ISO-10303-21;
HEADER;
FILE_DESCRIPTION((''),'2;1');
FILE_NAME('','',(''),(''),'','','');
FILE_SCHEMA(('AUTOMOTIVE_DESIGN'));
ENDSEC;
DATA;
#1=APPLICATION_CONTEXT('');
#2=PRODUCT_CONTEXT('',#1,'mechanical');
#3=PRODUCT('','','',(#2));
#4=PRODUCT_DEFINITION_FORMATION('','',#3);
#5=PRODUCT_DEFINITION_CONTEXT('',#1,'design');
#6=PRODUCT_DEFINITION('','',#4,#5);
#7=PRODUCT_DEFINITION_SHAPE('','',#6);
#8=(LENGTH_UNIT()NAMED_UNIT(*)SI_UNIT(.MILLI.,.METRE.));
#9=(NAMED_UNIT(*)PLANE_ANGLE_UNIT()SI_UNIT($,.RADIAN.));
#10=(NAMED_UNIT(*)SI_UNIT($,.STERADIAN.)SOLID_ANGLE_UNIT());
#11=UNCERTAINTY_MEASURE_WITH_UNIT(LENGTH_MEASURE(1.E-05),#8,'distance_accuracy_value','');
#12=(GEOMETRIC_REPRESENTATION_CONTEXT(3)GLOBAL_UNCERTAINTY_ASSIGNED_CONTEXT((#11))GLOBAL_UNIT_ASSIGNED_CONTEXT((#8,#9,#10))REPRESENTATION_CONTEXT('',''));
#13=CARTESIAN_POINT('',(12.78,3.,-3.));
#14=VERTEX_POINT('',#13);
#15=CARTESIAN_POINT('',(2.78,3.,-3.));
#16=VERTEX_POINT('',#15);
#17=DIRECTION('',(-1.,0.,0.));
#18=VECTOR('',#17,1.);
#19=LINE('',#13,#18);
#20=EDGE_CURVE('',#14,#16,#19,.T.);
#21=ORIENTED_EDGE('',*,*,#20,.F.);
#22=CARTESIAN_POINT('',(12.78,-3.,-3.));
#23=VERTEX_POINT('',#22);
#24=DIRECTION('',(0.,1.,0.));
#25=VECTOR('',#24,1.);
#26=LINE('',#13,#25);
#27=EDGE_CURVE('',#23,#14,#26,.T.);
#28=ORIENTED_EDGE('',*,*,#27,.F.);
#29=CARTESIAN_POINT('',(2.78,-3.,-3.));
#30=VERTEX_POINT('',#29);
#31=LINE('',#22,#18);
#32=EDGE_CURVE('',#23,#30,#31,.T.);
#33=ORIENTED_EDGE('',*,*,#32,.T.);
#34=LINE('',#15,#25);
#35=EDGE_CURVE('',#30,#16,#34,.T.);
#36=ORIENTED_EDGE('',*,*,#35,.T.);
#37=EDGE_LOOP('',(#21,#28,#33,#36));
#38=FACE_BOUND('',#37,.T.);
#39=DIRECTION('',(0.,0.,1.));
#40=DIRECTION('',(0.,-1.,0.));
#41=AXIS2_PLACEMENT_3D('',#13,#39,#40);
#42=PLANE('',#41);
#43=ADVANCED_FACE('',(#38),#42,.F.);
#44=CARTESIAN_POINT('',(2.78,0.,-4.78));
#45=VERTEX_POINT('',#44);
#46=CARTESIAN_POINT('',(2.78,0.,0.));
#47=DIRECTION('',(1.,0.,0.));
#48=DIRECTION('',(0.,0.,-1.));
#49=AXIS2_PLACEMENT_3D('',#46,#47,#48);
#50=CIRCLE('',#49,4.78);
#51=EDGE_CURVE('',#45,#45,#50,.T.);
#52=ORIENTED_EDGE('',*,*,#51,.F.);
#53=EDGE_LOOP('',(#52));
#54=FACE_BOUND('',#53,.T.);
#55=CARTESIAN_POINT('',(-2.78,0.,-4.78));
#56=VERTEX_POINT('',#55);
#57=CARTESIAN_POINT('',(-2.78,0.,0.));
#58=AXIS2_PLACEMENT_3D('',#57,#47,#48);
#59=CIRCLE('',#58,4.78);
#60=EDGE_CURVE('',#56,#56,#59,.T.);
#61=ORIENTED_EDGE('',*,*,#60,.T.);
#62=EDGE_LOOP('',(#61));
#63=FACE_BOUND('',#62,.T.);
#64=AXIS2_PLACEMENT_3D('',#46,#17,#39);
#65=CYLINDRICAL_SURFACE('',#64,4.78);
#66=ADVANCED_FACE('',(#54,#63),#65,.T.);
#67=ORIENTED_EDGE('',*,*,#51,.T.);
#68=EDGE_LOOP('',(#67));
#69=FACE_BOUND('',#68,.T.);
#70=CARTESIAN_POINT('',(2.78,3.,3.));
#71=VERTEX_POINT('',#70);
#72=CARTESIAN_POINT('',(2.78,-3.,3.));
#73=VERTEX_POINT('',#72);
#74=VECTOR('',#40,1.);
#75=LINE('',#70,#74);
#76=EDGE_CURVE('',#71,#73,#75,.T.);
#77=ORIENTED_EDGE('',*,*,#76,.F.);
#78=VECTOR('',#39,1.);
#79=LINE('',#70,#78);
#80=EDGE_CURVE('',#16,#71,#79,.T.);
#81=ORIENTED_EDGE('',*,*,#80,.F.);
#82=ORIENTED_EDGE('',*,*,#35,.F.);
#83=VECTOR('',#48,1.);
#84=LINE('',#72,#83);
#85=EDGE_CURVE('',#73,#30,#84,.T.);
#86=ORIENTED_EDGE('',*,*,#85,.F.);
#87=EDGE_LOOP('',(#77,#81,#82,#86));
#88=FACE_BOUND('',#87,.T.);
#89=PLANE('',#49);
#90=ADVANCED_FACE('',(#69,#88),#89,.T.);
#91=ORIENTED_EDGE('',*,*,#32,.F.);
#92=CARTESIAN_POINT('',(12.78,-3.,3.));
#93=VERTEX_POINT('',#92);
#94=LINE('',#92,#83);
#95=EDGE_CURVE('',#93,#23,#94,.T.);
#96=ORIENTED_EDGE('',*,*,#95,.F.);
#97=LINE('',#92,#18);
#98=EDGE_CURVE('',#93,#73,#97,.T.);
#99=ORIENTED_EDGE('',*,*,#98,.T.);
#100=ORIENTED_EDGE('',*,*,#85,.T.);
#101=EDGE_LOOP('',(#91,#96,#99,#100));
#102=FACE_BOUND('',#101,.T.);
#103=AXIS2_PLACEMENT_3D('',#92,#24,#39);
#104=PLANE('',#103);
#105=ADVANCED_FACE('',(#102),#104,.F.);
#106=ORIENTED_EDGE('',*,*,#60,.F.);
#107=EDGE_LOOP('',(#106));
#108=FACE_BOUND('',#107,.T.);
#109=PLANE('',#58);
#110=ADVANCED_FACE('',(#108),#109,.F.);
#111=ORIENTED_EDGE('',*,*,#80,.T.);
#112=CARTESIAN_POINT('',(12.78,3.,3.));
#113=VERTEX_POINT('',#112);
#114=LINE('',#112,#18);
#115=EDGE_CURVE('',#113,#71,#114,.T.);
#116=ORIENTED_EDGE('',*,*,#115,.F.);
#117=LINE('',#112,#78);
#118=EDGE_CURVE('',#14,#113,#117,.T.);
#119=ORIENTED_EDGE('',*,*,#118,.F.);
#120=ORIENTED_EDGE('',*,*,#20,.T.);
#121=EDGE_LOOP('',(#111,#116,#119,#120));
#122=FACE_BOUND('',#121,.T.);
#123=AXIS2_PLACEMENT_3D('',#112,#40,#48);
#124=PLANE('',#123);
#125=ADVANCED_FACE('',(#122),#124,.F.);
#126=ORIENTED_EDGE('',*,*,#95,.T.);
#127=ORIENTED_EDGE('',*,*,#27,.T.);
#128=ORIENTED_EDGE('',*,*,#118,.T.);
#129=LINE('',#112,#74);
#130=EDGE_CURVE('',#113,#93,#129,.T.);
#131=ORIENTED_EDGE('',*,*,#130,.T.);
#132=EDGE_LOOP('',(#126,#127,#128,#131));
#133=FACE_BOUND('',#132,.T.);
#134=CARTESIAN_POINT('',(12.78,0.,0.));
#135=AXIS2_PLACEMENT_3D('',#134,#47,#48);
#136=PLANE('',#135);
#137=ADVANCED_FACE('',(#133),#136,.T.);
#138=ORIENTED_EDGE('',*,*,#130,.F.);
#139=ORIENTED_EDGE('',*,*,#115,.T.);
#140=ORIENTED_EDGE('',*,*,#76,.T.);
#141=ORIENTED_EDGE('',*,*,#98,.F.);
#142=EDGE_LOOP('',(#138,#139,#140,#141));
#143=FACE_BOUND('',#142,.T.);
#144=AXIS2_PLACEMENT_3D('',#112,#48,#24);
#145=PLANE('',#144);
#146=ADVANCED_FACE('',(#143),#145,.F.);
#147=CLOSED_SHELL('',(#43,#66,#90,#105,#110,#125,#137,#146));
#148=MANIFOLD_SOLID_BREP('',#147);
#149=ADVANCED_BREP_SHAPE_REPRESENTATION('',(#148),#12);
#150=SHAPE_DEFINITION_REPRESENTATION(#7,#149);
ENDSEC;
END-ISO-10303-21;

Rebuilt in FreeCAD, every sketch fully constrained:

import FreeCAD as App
import Part
import Sketcher

V = App.Vector

doc = App.newDocument("Part")
body = doc.addObject("PartDesign::Body", "Body")

sketch1 = body.newObject("Sketcher::SketchObject", "Sketch")
sketch1.AttachmentSupport = (doc.getObject("YZ_Plane"), [""])
sketch1.MapMode = "FlatFace"
sketch1.addGeometry(Part.Circle(V(0, 0, 0), V(0, 0, 1), 4.8), False)
sketch1.addConstraint(Sketcher.Constraint("Coincident", 0, 3, -1, 1))
sketch1.addConstraint(Sketcher.Constraint("Diameter", 0, 9.56))
pad1 = body.newObject("PartDesign::Pad", "Pad")
pad1.Profile = sketch1
pad1.Length = 5.56
pad1.Midplane = True

sketch2 = body.newObject("Sketcher::SketchObject", "Sketch001")
sketch2.AttachmentSupport = (doc.getObject("YZ_Plane"), [""])
sketch2.MapMode = "FlatFace"
sketch2.AttachmentOffset = App.Placement(V(0, 0, 2.78), App.Rotation())
sketch2.addGeometry(Part.LineSegment(V(3, 3, 0), V(-3, 3, 0)), False)
sketch2.addGeometry(Part.LineSegment(V(-3, 3, 0), V(-3, -3, 0)), False)
sketch2.addGeometry(Part.LineSegment(V(-3, -3, 0), V(3, -3, 0)), False)
sketch2.addGeometry(Part.LineSegment(V(3, -3, 0), V(3, 3, 0)), False)
sketch2.addConstraint(Sketcher.Constraint("Coincident", 0, 2, 1, 1))
sketch2.addConstraint(Sketcher.Constraint("Coincident", 1, 2, 2, 1))
sketch2.addConstraint(Sketcher.Constraint("Coincident", 2, 2, 3, 1))
sketch2.addConstraint(Sketcher.Constraint("Coincident", 3, 2, 0, 1))
sketch2.addConstraint(Sketcher.Constraint("Horizontal", 0))
sketch2.addConstraint(Sketcher.Constraint("Vertical", 1))
sketch2.addConstraint(Sketcher.Constraint("Horizontal", 2))
sketch2.addConstraint(Sketcher.Constraint("Vertical", 3))
sketch2.addConstraint(Sketcher.Constraint("Symmetric", 0, 2, 2, 2, -1, 1))
sketch2.addConstraint(Sketcher.Constraint("Equal", 2, 1))
sketch2.addConstraint(Sketcher.Constraint("DistanceX", 0, 2, 0, 1, 6.0))
pad2 = body.newObject("PartDesign::Pad", "Pad001")
pad2.Profile = sketch2
pad2.Length = 10

doc.recompute()
